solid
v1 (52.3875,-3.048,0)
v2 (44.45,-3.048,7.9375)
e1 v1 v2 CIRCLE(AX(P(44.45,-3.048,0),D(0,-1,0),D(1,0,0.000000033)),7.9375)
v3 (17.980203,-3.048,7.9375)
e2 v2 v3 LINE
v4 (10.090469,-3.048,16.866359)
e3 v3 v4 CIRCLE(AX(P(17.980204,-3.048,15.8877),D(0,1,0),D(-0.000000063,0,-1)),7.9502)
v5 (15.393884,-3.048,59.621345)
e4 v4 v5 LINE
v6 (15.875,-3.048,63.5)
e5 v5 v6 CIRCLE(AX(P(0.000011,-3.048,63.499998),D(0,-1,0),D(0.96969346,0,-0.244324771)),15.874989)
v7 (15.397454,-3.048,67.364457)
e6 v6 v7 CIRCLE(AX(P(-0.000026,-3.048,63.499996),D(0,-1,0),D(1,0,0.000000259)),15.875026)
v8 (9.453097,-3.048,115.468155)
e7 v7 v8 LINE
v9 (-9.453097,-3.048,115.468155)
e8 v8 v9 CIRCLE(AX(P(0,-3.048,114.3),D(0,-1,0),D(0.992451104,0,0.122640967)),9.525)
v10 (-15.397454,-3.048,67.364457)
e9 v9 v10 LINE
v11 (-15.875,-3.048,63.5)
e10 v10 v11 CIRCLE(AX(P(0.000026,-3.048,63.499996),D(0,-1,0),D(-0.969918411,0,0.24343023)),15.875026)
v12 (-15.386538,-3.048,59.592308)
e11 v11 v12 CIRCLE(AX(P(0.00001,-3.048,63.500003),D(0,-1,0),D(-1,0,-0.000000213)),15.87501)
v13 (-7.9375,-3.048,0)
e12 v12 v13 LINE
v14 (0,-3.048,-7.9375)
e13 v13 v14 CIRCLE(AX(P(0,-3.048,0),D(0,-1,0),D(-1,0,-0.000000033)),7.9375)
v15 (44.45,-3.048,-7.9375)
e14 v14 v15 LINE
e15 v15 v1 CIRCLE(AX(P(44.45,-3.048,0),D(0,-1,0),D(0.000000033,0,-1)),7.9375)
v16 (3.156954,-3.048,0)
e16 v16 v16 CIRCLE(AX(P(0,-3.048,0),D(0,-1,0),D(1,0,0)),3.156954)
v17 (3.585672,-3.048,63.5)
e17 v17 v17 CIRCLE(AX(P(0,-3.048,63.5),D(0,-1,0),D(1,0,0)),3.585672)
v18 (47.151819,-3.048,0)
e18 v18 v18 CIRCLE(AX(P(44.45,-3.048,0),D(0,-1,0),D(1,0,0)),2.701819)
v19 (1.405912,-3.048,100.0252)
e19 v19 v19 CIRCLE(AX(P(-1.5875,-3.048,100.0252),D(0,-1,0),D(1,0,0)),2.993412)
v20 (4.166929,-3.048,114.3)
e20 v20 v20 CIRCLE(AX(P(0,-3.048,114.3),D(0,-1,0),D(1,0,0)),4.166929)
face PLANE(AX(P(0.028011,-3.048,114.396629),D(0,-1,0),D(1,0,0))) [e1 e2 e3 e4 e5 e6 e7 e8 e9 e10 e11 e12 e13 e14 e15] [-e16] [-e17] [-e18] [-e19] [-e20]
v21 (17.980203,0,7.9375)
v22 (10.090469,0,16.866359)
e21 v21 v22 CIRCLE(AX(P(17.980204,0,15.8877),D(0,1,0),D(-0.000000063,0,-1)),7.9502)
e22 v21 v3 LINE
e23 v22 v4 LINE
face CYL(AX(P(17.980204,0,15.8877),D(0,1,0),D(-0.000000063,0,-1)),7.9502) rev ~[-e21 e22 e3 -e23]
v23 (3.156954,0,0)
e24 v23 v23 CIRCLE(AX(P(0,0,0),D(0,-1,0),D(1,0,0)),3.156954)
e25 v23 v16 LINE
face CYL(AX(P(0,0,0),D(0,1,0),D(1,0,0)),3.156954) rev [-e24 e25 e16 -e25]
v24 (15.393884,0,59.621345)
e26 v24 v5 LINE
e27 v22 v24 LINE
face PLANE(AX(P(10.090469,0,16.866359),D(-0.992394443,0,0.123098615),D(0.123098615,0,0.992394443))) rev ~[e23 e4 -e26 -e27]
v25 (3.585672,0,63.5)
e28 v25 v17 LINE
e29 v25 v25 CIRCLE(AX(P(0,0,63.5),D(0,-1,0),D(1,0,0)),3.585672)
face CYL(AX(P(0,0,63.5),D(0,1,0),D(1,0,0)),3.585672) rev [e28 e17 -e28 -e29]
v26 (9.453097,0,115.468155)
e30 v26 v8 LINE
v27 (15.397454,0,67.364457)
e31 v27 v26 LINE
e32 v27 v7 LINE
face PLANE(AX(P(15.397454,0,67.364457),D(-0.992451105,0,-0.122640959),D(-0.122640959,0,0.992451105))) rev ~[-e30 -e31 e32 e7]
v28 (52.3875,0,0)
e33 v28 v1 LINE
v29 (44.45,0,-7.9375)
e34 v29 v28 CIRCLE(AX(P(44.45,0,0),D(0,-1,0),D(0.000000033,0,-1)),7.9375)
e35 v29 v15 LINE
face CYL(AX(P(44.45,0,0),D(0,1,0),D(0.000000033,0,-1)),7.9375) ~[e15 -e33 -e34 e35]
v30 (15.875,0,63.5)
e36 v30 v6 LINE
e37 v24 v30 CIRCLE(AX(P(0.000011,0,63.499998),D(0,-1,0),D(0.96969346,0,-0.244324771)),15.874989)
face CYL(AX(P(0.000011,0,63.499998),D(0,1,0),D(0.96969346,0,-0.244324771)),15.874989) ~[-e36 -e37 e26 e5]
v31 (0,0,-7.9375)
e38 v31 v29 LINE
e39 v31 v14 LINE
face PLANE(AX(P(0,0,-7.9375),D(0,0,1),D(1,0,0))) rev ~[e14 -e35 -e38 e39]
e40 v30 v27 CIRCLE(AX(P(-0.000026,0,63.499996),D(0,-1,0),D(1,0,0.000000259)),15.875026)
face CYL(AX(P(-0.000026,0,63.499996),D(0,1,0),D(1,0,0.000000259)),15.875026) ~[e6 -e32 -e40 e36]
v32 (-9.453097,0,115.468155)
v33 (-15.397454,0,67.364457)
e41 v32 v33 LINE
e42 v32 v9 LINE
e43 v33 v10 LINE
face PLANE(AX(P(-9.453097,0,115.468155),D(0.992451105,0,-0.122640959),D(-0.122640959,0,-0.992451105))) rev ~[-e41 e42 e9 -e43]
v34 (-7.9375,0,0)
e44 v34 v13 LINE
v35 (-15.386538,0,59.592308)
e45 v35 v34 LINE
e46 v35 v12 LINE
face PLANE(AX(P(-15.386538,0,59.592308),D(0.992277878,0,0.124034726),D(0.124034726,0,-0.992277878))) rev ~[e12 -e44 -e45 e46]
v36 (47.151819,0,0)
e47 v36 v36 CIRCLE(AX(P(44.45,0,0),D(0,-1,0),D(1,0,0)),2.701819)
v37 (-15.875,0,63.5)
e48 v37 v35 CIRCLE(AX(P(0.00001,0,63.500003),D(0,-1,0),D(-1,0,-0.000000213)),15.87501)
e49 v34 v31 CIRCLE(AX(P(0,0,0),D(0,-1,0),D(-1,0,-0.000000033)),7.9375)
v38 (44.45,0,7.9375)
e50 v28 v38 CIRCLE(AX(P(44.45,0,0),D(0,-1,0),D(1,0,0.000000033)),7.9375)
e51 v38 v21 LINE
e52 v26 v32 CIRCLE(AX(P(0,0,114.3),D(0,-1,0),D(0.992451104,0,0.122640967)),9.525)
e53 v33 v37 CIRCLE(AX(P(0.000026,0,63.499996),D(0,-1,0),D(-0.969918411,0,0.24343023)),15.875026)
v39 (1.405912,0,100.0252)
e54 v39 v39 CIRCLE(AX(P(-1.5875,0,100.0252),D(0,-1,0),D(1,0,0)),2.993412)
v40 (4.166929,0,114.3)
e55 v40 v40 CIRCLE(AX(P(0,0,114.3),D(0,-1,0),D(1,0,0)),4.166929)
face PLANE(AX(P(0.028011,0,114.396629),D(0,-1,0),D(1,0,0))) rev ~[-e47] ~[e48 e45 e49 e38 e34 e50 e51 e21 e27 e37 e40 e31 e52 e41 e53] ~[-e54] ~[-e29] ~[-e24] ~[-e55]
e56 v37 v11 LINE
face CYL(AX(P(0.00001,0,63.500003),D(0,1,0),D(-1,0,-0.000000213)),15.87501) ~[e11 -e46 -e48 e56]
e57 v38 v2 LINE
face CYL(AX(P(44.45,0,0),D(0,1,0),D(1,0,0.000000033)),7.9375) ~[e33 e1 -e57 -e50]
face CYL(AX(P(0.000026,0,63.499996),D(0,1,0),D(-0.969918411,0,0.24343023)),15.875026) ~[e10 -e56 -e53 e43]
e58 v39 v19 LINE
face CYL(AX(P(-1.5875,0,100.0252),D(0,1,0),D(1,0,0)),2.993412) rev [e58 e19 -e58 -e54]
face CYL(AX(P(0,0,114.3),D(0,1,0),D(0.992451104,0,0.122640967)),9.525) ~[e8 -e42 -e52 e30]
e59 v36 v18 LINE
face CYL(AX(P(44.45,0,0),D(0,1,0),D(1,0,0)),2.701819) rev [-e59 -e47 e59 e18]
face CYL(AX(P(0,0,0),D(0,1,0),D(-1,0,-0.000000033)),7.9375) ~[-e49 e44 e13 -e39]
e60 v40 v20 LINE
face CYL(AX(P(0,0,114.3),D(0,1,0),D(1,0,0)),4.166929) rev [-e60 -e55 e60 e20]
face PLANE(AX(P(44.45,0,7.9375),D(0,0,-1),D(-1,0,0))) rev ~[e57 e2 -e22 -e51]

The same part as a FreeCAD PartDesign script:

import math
import FreeCAD as App
import Part
import Sketcher
from FreeCAD import Vector
Q = App.Units.Quantity

doc = App.newDocument("Part")
params = doc.addObject("Spreadsheet::Sheet", "Params")
for row, (alias, value) in enumerate([
    ("sketch1_radius", "0.375 in"),
    ("sketch1_radius2", "0.3125 in"),
    ("sketch1_radius3", "0.313 in"),
    ("sketch1_width", "1.75 in"),
    ("pad1_length", "0.12 in"),
], start=1):
    params.set(f"A{row}", alias)
    params.set(f"B{row}", "=" + value)
    params.setAlias(f"B{row}", alias)

body = doc.addObject("PartDesign::Body", "Body")

# Sketch on XZ plane
sketch1 = body.newObject("Sketcher::SketchObject", "Sketch")
sketch1.AttachmentSupport = (doc.getObject("XZ_Plane"), [""])
sketch1.MapMode = "FlatFace"
sketch1.addGeometry([
    Part.ArcOfCircle(Part.Circle(Vector(0, 114.3, 0), Vector(0, 0, 1), 9.5), math.radians(7), math.radians(173)),  # 0
    Part.LineSegment(Vector(-9.5, 115.5, 0), Vector(-15.4, 67.4, 0)),  # 1
    Part.ArcOfCircle(Part.Circle(Vector(0, 63.5, 0), Vector(0, 0, 1), 15.9), math.radians(165.91), math.radians(180)),  # 2
    Part.ArcOfCircle(Part.Circle(Vector(0, 63.5, 0), Vector(0, 0, 1), 15.9), math.radians(-180), math.radians(-165.75)),  # 3
    Part.LineSegment(Vector(-15.4, 59.6, 0), Vector(-7.9, 0, 0)),  # 4
    Part.ArcOfCircle(Part.Circle(Vector(0, 0, 0), Vector(0, 0, 1), 7.9), math.radians(-180), math.radians(-90)),  # 5
    Part.LineSegment(Vector(0, -7.9, 0), Vector(44.5, -7.9, 0)),  # 6
    Part.ArcOfCircle(Part.Circle(Vector(44.4, 0, 0), Vector(0, 0, 1), 7.9), math.radians(-90), math.radians(0)),  # 7
    Part.ArcOfCircle(Part.Circle(Vector(44.4, 0, 0), Vector(0, 0, 1), 7.9), math.radians(0), math.radians(90)),  # 8
    Part.LineSegment(Vector(44.5, 7.9, 0), Vector(18, 7.9, 0)),  # 9
    Part.ArcOfCircle(Part.Circle(Vector(18, 15.9, 0), Vector(0, 0, 1), 8), math.radians(173), math.radians(270)),  # 10
    Part.LineSegment(Vector(10.1, 16.9, 0), Vector(15.4, 59.6, 0)),  # 11
    Part.ArcOfCircle(Part.Circle(Vector(0, 63.5, 0), Vector(0, 0, 1), 15.9), math.radians(-14.14), math.radians(0)),  # 12
    Part.ArcOfCircle(Part.Circle(Vector(0, 63.5, 0), Vector(0, 0, 1), 15.9), math.radians(0), math.radians(14.09)),  # 13
    Part.LineSegment(Vector(15.4, 67.4, 0), Vector(9.5, 115.5, 0)),  # 14
    Part.Circle(Vector(0, 0, 0), Vector(0, 0, 1), 3.2),  # 15
    Part.Circle(Vector(44.5, 0, 0), Vector(0, 0, 1), 2.7),  # 16
    Part.Circle(Vector(0, 63.5, 0), Vector(0, 0, 1), 3.6),  # 17
    Part.Circle(Vector(-1.6, 100, 0), Vector(0, 0, 1), 3),  # 18
    Part.Circle(Vector(0, 114.3, 0), Vector(0, 0, 1), 4.2),  # 19
], False)
sketch1.addConstraint([
    Sketcher.Constraint("Tangent", 0, 2, 1, 1),
    Sketcher.Constraint("Coincident", 1, 2, 2, 1),
    Sketcher.Constraint("Tangent", 2, 2, 3, 1),
    Sketcher.Constraint("Coincident", 3, 2, 4, 1),
    Sketcher.Constraint("Coincident", 4, 2, 5, 1),
    Sketcher.Constraint("Tangent", 5, 2, 6, 1),
    Sketcher.Constraint("Tangent", 6, 2, 7, 1),
    Sketcher.Constraint("Tangent", 7, 2, 8, 1),
    Sketcher.Constraint("Tangent", 8, 2, 9, 1),
    Sketcher.Constraint("Tangent", 9, 2, 10, 2),
    Sketcher.Constraint("Tangent", 10, 1, 11, 1),
    Sketcher.Constraint("Coincident", 11, 2, 12, 1),
    Sketcher.Constraint("Tangent", 12, 2, 13, 1),
    Sketcher.Constraint("Coincident", 13, 2, 14, 1),
    Sketcher.Constraint("Tangent", 14, 2, 0, 1),
    Sketcher.Constraint("Horizontal", 6),
    Sketcher.Constraint("Horizontal", 9),
    Sketcher.Constraint("Coincident", 5, 3, -1, 1),
    Sketcher.Constraint("Coincident", 15, 3, -1, 1),
    Sketcher.Constraint("Coincident", 12, 3, 3, 3),
    Sketcher.Constraint("Coincident", 16, 3, 7, 3),
    Sketcher.Constraint("Coincident", 19, 3, 0, 3),
    Sketcher.Constraint("Equal", 5, 7),
    Sketcher.Constraint("Equal", 7, 8),
    Sketcher.Constraint("Equal", 2, 13),
    Sketcher.Constraint("Symmetric", 2, 2, 12, 2, -2),
    Sketcher.Constraint("Symmetric", 0, 2, 14, 2, -2),
    Sketcher.Constraint("PointOnObject", 17, 3, -2),
    Sketcher.Constraint("PointOnObject", 4, 2, -1),
    Sketcher.Constraint("PointOnObject", 7, 2, -1),
    Sketcher.Constraint("Horizontal", 12, 3, 17, 3),
    Sketcher.Constraint("Horizontal", 17, 3, 2, 2),
    Sketcher.Constraint("Radius", 0, Q("0.375 in")),
    Sketcher.Constraint("Radius", 5, Q("0.3125 in")),
    Sketcher.Constraint("Radius", 10, Q("0.313 in")),
    Sketcher.Constraint("DistanceY", 2, 3, 0, 3, Q("2.0000002 in")),
    Sketcher.Constraint("DistanceX", 6, 1, 6, 2, Q("1.75 in")),
    Sketcher.Constraint("DistanceY", -1, 1, 0, 3, Q("4.5 in")),
    Sketcher.Constraint("DistanceX", 18, 3, -1, 1, Q("0.0625 in")),
    Sketcher.Constraint("DistanceY", -1, 1, 18, 3, Q("3.938 in")),
    Sketcher.Constraint("DistanceX", 2, 2, -1, 1, Q("0.625 in")),
    Sketcher.Constraint("Radius", 3, 15.87501),
    Sketcher.Constraint("Diameter", 15, 6.313908),
    Sketcher.Constraint("Diameter", 16, 5.403638),
    Sketcher.Constraint("Diameter", 17, 7.171344),
    Sketcher.Constraint("Diameter", 18, 5.986824),
    Sketcher.Constraint("Diameter", 19, 8.333858),
    Sketcher.Constraint("Radius", 2, 15.875026),
    Sketcher.Constraint("DistanceX", 1, 2, 2, 3, Q("0.6062 in")),
    Sketcher.Constraint("Distance", 4, 60.056068),
    Sketcher.Constraint("DistanceX", 9, 2, 9, 1, 26.469797),
    Sketcher.Constraint("DistanceY", -1, 1, 10, 1, 16.866359),
])
sketch1.setExpression("Constraints[32]", "Params.sketch1_radius")
sketch1.setExpression("Constraints[33]", "Params.sketch1_radius2")
sketch1.setExpression("Constraints[34]", "Params.sketch1_radius3")
sketch1.setExpression("Constraints[36]", "Params.sketch1_width")
pad1 = body.newObject("PartDesign::Pad", "Pad")
pad1.Profile = sketch1
pad1.setExpression("Length", "Params.pad1_length")

doc.recompute()
